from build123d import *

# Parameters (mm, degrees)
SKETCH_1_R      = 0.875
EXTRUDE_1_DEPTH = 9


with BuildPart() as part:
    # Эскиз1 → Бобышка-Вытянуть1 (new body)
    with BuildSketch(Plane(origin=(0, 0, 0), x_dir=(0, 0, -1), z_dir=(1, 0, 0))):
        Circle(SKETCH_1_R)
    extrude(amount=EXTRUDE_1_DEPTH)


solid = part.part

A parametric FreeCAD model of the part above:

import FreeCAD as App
import Part
import Sketcher
from FreeCAD import Vector
Q = App.Units.Quantity

doc = App.newDocument("Part")
body = doc.addObject("PartDesign::Body", "Body")

sketch1 = doc.addObject("Sketcher::SketchObject", "Sketch")
body.addObject(sketch1)
sketch1.AttachmentSupport = (doc.YZ_Plane, [""])
sketch1.MapMode = "FlatFace"
sketch1.addGeometry(Part.Circle(Vector(0, 0, 0), Vector(0, 0, 1), 0.875), False)
sketch1.addConstraint(Sketcher.Constraint("Coincident", 0, 3, -1, 1))
sketch1.addConstraint(Sketcher.Constraint("Diameter", 0, Q("1.75 mm")))
pad1 = doc.addObject("PartDesign::Pad", "Pad")
body.addObject(pad1)
pad1.Profile = sketch1
pad1.Length = 9

doc.recompute()
